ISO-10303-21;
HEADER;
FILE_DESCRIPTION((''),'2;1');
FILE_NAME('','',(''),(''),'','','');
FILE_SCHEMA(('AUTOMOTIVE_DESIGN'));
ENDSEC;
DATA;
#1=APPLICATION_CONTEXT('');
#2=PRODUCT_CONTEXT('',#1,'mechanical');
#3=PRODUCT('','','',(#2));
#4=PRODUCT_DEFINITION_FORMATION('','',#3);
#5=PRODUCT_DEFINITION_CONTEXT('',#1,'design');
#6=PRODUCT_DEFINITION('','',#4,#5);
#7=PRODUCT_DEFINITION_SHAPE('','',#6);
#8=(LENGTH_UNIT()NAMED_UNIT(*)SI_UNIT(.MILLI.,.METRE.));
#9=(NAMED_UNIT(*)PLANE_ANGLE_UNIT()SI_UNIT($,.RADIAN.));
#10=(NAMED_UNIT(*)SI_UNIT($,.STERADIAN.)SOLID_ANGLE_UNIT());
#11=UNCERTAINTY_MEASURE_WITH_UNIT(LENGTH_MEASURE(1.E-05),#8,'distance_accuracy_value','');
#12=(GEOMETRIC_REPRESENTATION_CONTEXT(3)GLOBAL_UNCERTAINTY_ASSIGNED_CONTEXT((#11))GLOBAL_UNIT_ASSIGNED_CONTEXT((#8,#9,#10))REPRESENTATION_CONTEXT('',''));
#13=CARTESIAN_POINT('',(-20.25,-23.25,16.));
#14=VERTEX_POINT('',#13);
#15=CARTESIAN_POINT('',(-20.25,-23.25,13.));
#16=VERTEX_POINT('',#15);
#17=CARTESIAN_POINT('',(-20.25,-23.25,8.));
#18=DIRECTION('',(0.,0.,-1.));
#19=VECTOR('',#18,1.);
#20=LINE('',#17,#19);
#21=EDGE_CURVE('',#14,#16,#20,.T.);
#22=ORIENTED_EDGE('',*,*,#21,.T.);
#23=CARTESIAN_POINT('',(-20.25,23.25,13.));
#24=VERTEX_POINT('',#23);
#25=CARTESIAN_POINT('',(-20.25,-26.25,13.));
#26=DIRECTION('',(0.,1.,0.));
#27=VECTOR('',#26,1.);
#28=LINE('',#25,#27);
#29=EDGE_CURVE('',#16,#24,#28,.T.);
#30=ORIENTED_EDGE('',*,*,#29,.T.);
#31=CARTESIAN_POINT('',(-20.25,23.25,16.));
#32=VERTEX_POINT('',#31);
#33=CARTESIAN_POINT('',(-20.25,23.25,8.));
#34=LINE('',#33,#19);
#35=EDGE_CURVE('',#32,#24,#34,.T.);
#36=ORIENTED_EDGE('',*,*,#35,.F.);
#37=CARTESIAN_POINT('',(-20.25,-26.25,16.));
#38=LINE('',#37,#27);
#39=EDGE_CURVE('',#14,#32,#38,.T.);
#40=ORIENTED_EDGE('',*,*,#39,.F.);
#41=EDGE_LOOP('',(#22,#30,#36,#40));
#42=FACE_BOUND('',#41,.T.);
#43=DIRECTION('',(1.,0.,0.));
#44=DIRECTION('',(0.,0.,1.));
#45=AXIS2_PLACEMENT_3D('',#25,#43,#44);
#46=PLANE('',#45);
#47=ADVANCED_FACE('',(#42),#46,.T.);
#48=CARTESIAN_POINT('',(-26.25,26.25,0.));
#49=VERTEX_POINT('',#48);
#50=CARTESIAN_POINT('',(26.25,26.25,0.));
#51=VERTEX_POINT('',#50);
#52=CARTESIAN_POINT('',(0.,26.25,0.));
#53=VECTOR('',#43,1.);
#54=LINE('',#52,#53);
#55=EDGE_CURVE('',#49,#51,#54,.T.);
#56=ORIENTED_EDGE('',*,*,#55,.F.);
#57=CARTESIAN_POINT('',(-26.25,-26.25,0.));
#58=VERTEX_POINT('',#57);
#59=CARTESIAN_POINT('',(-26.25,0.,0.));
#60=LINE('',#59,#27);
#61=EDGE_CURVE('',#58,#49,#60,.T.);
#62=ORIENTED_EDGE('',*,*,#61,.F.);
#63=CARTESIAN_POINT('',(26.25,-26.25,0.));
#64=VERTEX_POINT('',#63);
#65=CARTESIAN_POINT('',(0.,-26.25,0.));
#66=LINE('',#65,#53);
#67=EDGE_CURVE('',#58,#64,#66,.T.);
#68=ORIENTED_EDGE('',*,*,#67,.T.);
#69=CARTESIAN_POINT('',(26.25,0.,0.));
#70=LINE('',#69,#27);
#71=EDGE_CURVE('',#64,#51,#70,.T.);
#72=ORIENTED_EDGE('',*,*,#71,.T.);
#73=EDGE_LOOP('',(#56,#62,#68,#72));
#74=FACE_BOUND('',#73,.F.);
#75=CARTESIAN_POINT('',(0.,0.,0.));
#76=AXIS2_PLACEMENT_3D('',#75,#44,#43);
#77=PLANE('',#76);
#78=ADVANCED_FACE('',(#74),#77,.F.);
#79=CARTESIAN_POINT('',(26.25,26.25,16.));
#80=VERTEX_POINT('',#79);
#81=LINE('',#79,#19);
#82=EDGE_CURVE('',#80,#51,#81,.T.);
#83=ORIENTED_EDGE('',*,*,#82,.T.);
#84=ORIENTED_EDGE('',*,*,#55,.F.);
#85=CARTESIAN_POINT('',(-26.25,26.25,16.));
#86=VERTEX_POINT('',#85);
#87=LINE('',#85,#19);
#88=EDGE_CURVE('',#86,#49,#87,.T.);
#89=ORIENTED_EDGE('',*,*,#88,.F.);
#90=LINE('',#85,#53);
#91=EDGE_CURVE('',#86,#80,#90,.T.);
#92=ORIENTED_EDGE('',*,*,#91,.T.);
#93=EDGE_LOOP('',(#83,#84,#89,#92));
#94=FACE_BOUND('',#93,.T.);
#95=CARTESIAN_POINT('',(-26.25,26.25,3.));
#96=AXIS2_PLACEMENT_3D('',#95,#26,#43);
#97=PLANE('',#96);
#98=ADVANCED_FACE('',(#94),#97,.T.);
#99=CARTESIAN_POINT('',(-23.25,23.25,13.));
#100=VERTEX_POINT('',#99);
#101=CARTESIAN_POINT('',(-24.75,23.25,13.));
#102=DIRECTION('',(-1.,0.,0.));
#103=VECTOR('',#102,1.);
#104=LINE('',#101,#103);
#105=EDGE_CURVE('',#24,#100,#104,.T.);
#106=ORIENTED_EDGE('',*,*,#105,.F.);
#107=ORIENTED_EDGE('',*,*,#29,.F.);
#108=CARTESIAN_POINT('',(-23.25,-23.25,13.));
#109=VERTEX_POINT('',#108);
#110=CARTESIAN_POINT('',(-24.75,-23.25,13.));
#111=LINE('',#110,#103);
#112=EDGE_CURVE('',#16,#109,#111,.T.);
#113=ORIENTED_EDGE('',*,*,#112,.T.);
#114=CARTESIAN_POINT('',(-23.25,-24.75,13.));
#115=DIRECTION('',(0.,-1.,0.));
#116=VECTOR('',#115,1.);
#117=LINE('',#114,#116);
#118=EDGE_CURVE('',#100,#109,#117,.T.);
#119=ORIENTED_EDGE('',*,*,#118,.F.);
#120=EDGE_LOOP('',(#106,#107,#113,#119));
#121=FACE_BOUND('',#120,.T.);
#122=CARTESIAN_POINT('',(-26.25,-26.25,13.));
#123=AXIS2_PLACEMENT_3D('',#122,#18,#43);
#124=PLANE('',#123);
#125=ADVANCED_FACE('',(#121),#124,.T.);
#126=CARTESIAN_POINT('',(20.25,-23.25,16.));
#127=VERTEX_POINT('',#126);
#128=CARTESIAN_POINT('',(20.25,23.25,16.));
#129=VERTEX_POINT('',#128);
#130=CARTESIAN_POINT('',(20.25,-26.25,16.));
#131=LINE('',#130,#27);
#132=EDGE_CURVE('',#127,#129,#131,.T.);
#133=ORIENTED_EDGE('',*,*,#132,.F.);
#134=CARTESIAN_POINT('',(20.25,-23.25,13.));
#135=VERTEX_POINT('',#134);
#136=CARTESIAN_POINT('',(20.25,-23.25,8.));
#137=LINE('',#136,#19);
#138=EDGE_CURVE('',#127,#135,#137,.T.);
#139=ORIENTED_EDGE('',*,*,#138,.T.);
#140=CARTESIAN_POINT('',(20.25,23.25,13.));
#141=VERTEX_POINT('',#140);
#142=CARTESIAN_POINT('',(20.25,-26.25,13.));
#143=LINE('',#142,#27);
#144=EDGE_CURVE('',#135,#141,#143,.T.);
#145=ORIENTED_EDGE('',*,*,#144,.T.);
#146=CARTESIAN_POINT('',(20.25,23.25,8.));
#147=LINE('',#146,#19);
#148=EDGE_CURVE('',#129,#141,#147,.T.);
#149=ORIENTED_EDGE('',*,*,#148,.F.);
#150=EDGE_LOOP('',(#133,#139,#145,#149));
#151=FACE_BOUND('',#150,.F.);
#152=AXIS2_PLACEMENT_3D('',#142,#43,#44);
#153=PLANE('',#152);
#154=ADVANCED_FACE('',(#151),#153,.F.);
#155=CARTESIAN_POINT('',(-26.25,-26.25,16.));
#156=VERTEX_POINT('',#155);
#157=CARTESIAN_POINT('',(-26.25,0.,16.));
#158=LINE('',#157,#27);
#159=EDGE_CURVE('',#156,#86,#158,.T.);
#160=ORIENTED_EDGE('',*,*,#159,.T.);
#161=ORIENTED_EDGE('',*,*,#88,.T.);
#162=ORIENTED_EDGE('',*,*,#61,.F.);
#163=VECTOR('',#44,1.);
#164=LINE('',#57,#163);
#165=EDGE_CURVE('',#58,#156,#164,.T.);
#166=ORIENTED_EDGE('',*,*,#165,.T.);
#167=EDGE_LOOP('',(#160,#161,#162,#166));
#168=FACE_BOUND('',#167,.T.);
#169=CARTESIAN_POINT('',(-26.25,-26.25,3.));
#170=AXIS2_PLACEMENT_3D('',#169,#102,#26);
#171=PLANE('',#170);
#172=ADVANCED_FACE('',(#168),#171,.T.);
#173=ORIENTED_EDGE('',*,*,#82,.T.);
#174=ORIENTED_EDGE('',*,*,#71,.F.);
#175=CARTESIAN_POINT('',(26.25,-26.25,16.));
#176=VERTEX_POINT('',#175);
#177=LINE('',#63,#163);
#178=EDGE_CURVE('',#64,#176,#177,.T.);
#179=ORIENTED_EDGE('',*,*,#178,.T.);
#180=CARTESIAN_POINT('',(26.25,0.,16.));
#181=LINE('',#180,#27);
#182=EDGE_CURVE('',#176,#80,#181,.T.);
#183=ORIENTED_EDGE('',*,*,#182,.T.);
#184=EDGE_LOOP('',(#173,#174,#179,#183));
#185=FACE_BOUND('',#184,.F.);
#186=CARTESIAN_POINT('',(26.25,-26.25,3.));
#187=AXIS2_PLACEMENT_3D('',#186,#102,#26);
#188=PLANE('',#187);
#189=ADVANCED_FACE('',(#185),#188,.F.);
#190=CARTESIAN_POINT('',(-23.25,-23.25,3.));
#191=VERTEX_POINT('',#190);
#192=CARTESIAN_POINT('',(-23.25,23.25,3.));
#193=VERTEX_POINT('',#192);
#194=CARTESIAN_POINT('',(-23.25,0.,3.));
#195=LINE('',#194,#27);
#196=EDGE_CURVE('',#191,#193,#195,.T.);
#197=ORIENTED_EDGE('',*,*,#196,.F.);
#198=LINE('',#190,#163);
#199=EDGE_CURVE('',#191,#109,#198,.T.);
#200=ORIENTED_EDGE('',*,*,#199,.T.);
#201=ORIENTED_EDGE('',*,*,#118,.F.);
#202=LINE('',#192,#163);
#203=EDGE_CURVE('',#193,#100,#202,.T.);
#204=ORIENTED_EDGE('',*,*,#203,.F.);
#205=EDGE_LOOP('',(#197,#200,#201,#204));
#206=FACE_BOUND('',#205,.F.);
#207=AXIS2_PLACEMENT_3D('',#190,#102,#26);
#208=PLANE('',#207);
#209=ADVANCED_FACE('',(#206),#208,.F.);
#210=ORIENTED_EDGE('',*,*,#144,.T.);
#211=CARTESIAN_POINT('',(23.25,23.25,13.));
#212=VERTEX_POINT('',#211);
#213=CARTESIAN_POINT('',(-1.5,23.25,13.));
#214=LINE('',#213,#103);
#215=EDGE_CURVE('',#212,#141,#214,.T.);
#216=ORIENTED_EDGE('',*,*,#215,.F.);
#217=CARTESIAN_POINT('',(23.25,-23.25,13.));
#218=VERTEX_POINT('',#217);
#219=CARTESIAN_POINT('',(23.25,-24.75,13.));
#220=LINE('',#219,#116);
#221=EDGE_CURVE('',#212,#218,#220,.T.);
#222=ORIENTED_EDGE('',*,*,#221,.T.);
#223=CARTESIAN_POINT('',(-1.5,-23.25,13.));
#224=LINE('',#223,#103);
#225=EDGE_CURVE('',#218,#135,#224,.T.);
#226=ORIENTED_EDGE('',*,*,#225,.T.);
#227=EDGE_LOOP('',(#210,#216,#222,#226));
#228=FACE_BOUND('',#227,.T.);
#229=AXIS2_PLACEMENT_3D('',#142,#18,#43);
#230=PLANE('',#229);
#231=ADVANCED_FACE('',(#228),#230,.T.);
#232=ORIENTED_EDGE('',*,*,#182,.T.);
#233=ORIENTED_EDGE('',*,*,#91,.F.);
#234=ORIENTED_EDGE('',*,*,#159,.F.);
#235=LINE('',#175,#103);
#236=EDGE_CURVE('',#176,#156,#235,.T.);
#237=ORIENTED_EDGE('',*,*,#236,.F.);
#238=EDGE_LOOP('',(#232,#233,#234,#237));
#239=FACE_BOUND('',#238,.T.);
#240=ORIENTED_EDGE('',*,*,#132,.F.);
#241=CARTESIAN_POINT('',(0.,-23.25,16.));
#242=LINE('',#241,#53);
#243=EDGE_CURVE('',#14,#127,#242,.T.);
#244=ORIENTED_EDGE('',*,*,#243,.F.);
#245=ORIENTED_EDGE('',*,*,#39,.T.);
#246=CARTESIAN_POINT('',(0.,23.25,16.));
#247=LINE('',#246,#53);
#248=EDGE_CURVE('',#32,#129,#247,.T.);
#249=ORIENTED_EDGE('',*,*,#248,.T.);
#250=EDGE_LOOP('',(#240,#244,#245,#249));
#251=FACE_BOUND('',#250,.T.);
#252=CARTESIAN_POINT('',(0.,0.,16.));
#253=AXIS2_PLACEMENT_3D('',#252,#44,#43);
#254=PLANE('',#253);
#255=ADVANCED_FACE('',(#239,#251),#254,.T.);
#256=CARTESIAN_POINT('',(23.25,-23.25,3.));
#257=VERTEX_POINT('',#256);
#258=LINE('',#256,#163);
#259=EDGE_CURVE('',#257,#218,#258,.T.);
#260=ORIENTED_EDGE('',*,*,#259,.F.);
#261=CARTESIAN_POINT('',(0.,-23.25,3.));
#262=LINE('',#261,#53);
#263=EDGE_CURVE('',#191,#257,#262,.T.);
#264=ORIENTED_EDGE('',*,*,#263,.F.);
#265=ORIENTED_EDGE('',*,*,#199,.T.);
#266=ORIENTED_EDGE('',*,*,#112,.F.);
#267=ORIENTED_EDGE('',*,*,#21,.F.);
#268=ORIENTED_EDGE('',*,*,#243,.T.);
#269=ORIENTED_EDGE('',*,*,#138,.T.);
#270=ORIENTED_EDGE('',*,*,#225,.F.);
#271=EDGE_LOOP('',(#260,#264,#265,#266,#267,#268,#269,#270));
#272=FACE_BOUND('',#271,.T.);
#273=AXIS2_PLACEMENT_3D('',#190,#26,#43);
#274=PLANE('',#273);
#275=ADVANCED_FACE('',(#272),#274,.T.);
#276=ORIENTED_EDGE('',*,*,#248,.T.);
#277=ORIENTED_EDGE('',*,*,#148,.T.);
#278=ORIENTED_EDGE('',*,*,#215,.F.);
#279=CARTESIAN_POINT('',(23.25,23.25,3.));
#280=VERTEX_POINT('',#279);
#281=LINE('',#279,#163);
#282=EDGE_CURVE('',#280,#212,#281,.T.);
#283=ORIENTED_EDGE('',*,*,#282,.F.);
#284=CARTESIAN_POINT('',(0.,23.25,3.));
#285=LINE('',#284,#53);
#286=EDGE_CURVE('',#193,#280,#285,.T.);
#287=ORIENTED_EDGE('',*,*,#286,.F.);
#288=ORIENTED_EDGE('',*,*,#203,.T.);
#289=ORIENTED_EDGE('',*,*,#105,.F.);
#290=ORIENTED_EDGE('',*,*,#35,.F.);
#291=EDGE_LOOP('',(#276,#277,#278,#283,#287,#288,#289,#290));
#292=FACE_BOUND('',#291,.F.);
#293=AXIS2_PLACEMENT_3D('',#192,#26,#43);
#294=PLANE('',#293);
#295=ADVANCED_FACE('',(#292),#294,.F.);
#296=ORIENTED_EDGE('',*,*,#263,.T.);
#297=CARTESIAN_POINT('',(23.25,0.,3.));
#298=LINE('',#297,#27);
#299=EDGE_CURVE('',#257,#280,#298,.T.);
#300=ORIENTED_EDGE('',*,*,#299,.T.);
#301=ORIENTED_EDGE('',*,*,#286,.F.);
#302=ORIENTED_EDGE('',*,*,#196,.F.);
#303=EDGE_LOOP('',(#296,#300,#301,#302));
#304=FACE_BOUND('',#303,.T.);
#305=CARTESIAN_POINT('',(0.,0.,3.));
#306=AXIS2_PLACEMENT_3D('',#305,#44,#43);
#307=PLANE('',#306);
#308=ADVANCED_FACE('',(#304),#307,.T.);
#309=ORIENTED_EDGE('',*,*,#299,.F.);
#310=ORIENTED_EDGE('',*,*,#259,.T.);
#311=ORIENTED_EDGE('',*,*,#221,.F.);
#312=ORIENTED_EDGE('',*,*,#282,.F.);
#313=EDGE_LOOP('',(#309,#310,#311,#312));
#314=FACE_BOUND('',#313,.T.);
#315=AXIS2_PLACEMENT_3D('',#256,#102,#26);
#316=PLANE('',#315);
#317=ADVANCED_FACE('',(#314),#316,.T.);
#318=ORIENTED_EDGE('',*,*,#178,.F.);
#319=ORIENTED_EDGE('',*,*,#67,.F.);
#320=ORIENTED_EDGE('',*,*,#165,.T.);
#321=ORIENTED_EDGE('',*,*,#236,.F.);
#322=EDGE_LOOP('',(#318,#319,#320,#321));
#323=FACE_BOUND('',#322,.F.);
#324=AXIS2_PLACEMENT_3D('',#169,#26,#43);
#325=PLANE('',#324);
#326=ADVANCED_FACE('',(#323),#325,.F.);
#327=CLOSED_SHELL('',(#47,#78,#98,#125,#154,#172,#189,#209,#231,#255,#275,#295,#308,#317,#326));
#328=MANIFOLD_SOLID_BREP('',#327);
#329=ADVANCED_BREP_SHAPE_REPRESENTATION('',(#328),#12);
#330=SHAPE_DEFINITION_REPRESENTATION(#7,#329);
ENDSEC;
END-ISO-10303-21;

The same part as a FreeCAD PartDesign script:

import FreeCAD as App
import Part
import Sketcher
from FreeCAD import Vector

doc = App.newDocument("Part")
body = doc.addObject("PartDesign::Body", "Body")

sketch1 = body.newObject("Sketcher::SketchObject", "Sketch")
sketch1.AttachmentSupport = (doc.getObject("XY_Plane"), [""])
sketch1.MapMode = "FlatFace"
sketch1.addGeometry([
    Part.LineSegment(Vector(-26, 26, 0), Vector(-26, -26, 0)),
    Part.LineSegment(Vector(-26, -26, 0), Vector(26, -26, 0)),
    Part.LineSegment(Vector(26, -26, 0), Vector(26, 26, 0)),
    Part.LineSegment(Vector(26, 26, 0), Vector(-26, 26, 0)),
], False)
sketch1.addConstraint([
    Sketcher.Constraint("Coincident", 0, 2, 1, 1),
    Sketcher.Constraint("Coincident", 1, 2, 2, 1),
    Sketcher.Constraint("Coincident", 2, 2, 3, 1),
    Sketcher.Constraint("Coincident", 3, 2, 0, 1),
    Sketcher.Constraint("Vertical", 0),
    Sketcher.Constraint("Horizontal", 1),
    Sketcher.Constraint("Vertical", 2),
    Sketcher.Constraint("Horizontal", 3),
    Sketcher.Constraint("Symmetric", 0, 2, 2, 2, -1, 1),
    Sketcher.Constraint("Equal", 3, 0),
    Sketcher.Constraint("DistanceX", 1, 1, 1, 2, 52.5),
])
pad1 = body.newObject("PartDesign::Pad", "Pad")
pad1.Profile = sketch1
pad1.Length = 3

sketch2 = body.newObject("Sketcher::SketchObject", "Sketch001")
sketch2.AttachmentSupport = (doc.getObject("XY_Plane"), [""])
sketch2.MapMode = "FlatFace"
sketch2.AttachmentOffset = App.Placement(Vector(0, 0, 3), App.Rotation())
sketch2.addGeometry([
    Part.LineSegment(Vector(-26, 26, 0), Vector(-26, -26, 0)),
    Part.LineSegment(Vector(-26, -26, 0), Vector(26, -26, 0)),
    Part.LineSegment(Vector(26, -26, 0), Vector(26, 26, 0)),
    Part.LineSegment(Vector(26, 26, 0), Vector(-26, 26, 0)),
    Part.LineSegment(Vector(23, -23, 0), Vector(-23, -23, 0)),
    Part.LineSegment(Vector(-23, -23, 0), Vector(-23, 23, 0)),
    Part.LineSegment(Vector(-23, 23, 0), Vector(23, 23, 0)),
    Part.LineSegment(Vector(23, 23, 0), Vector(23, -23, 0)),
], False)
sketch2.addConstraint([
    Sketcher.Constraint("Coincident", 0, 2, 1, 1),
    Sketcher.Constraint("Coincident", 1, 2, 2, 1),
    Sketcher.Constraint("Coincident", 2, 2, 3, 1),
    Sketcher.Constraint("Coincident", 3, 2, 0, 1),
    Sketcher.Constraint("Coincident", 4, 2, 5, 1),
    Sketcher.Constraint("Coincident", 5, 2, 6, 1),
    Sketcher.Constraint("Coincident", 6, 2, 7, 1),
    Sketcher.Constraint("Coincident", 7, 2, 4, 1),
    Sketcher.Constraint("Vertical", 0),
    Sketcher.Constraint("Horizontal", 1),
    Sketcher.Constraint("Vertical", 2),
    Sketcher.Constraint("Horizontal", 3),
    Sketcher.Constraint("Horizontal", 4),
    Sketcher.Constraint("Vertical", 5),
    Sketcher.Constraint("Horizontal", 6),
    Sketcher.Constraint("Vertical", 7),
    Sketcher.Constraint("Symmetric", 0, 2, 2, 2, -1, 1),
    Sketcher.Constraint("Symmetric", 4, 2, 6, 2, -1, 1),
    Sketcher.Constraint("Equal", 3, 0),
    Sketcher.Constraint("Equal", 6, 5),
    Sketcher.Constraint("DistanceX", 1, 1, 1, 2, 52.5),
    Sketcher.Constraint("DistanceX", 4, 2, 4, 1, 46.5),
])
pad2 = body.newObject("PartDesign::Pad", "Pad001")
pad2.Profile = sketch2
pad2.Length = 13

sketch3 = body.newObject("Sketcher::SketchObject", "Sketch002")
sketch3.AttachmentSupport = (doc.getObject("XZ_Plane"), [""])
sketch3.MapMode = "FlatFace"
sketch3.AttachmentOffset = App.Placement(Vector(0, 0, 26.25), App.Rotation())
sketch3.addGeometry([
    Part.LineSegment(Vector(-26.2, 16, 0), Vector(-26.2, 13, 0)),
    Part.LineSegment(Vector(-26.2, 13, 0), Vector(-20.2, 13, 0)),
    Part.LineSegment(Vector(-20.2, 13, 0), Vector(-20.2, 16, 0)),
    Part.LineSegment(Vector(-20.2, 16, 0), Vector(-26.2, 16, 0)),
    Part.LineSegment(Vector(20.2, 16, 0), Vector(20.2, 13, 0)),
    Part.LineSegment(Vector(20.2, 13, 0), Vector(26.2, 13, 0)),
    Part.LineSegment(Vector(26.2, 13, 0), Vector(26.2, 16, 0)),
    Part.LineSegment(Vector(26.2, 16, 0), Vector(20.2, 16, 0)),
], False)
sketch3.addConstraint([
    Sketcher.Constraint("Coincident", 0, 2, 1, 1),
    Sketcher.Constraint("Coincident", 1, 2, 2, 1),
    Sketcher.Constraint("Coincident", 2, 2, 3, 1),
    Sketcher.Constraint("Coincident", 3, 2, 0, 1),
    Sketcher.Constraint("Coincident", 4, 2, 5, 1),
    Sketcher.Constraint("Coincident", 5, 2, 6, 1),
    Sketcher.Constraint("Coincident", 6, 2, 7, 1),
    Sketcher.Constraint("Coincident", 7, 2, 4, 1),
    Sketcher.Constraint("Vertical", 0),
    Sketcher.Constraint("Horizontal", 1),
    Sketcher.Constraint("Vertical", 2),
    Sketcher.Constraint("Horizontal", 3),
    Sketcher.Constraint("Vertical", 4),
    Sketcher.Constraint("Horizontal", 5),
    Sketcher.Constraint("Vertical", 6),
    Sketcher.Constraint("Horizontal", 7),
    Sketcher.Constraint("Symmetric", 1, 2, 4, 2, -2),
    Sketcher.Constraint("Symmetric", 3, 2, 6, 2, -2),
    Sketcher.Constraint("DistanceX", 1, 1, 1, 2, 6.0),
    Sketcher.Constraint("DistanceY", 0, 2, 0, 1, 3.0),
    Sketcher.Constraint("DistanceY", -1, 1, 0, 2, 13.0),
    Sketcher.Constraint("DistanceX", 1, 2, 4, 2, 40.5),
])
pad3 = body.newObject("PartDesign::Pad", "Pad002")
pad3.Profile = sketch3
pad3.Length = 52.5
pad3.Reversed = True

doc.recompute()
